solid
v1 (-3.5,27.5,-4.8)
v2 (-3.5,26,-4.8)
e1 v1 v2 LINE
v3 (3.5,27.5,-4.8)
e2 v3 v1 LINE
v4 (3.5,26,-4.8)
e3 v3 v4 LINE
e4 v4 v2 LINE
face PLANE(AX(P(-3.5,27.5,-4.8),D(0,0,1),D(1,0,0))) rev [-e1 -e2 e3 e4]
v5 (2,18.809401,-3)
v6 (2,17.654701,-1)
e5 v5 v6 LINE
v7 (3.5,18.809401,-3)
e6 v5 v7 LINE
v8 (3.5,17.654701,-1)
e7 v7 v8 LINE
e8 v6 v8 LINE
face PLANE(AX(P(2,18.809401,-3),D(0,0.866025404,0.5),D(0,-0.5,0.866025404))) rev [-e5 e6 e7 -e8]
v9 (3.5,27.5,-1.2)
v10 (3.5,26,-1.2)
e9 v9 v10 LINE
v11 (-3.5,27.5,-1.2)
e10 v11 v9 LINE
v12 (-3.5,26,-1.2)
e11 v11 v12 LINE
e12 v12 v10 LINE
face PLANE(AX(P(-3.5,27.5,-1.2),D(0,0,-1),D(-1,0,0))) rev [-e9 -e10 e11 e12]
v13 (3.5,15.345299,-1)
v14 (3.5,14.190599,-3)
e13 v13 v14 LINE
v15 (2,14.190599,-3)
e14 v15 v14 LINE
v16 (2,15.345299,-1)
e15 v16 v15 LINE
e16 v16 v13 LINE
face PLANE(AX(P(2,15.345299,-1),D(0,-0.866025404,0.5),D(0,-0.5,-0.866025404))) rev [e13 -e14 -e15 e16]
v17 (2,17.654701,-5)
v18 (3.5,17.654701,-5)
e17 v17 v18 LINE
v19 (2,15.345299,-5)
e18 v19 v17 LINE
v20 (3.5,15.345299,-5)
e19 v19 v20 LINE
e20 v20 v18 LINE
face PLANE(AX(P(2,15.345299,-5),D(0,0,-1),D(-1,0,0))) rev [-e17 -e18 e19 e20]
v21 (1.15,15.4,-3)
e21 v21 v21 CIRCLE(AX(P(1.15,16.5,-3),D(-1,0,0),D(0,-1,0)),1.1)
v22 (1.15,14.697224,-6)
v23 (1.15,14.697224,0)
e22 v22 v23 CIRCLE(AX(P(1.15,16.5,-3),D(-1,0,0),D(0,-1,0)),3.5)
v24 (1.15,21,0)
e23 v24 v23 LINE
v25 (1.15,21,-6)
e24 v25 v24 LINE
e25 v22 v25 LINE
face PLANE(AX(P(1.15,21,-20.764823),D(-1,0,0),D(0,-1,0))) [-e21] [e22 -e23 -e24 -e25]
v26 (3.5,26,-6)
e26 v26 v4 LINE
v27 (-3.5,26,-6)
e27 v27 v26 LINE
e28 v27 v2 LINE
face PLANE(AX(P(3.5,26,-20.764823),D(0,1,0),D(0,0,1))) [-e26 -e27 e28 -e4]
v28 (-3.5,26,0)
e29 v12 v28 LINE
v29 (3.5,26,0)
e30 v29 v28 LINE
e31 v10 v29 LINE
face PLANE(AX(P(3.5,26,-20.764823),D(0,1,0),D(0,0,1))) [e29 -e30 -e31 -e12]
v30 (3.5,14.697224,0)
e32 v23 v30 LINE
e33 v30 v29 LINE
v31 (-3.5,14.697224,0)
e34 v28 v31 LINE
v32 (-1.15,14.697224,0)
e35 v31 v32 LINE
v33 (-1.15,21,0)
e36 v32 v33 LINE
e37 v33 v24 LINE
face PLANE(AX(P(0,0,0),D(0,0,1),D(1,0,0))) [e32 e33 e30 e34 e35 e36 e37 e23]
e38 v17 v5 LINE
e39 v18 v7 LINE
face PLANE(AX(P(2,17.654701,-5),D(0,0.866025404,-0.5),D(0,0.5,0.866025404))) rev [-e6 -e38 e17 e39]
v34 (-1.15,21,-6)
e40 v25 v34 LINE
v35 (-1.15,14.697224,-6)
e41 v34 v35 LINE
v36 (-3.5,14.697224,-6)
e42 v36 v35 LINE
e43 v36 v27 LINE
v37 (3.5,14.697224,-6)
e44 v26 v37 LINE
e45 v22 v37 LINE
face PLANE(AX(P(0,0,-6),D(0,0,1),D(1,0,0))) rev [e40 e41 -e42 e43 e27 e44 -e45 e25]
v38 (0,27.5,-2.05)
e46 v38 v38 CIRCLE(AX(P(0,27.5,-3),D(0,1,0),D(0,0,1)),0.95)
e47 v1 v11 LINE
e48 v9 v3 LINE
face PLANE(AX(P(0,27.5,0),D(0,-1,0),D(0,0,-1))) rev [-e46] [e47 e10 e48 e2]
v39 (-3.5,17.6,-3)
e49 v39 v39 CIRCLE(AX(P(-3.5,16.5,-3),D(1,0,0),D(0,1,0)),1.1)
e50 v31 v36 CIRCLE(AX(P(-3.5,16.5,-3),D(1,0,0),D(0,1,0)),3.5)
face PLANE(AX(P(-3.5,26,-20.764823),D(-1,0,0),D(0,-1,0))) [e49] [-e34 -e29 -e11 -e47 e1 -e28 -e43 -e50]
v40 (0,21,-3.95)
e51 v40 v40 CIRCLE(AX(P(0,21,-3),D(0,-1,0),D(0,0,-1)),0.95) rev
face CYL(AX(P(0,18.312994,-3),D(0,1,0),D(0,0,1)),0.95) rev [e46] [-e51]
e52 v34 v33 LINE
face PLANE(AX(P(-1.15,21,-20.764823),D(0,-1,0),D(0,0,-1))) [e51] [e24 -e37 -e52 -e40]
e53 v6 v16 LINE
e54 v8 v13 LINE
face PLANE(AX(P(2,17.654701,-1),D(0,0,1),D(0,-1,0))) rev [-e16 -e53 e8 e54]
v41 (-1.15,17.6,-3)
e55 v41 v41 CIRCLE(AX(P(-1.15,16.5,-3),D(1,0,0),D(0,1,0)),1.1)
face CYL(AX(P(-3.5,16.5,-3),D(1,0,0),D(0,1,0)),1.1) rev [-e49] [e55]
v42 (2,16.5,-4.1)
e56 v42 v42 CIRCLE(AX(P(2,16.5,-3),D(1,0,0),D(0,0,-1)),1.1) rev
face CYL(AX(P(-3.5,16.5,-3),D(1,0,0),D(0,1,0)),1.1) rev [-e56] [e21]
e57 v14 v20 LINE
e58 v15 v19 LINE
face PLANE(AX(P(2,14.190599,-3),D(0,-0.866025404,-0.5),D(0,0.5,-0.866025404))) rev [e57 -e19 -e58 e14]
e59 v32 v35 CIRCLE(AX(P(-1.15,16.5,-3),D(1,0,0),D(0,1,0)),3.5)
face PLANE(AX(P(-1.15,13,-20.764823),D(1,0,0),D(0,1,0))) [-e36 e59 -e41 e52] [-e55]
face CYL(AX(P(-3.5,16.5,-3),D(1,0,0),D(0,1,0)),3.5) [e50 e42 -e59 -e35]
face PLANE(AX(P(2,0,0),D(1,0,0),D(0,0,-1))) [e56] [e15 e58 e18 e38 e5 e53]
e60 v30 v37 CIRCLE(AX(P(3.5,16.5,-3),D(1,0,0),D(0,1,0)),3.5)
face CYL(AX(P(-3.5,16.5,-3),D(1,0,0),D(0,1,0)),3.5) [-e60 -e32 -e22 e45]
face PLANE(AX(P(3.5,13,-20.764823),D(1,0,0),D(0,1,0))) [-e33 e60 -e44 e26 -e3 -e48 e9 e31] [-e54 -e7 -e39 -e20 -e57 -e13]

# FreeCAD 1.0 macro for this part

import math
import FreeCAD as App
import Part
import Sketcher
from FreeCAD import Vector
Q = App.Units.Quantity

doc = App.newDocument("Part")
body = doc.addObject("PartDesign::Body", "Body")

# Sketch on XY plane
sketch1 = body.newObject("Sketcher::SketchObject", "Sketch")
sketch1.AttachmentSupport = (doc.getObject("XY_Plane"), [""])
sketch1.MapMode = "FlatFace"
sketch1.addGeometry([
    Part.LineSegment(Vector(-1.1, 13, 0), Vector(-1.1, 21, 0)),  # 0
    Part.LineSegment(Vector(-1.1, 21, 0), Vector(1.1, 21, 0)),  # 1
    Part.LineSegment(Vector(1.1, 21, 0), Vector(1.1, 13, 0)),  # 2
    Part.LineSegment(Vector(1.1, 13, 0), Vector(3.5, 13, 0)),  # 3
    Part.LineSegment(Vector(3.5, 13, 0), Vector(3.5, 26, 0)),  # 4
    Part.LineSegment(Vector(3.5, 26, 0), Vector(-3.5, 26, 0)),  # 5
    Part.LineSegment(Vector(-3.5, 26, 0), Vector(-3.5, 13, 0)),  # 6
    Part.LineSegment(Vector(-3.5, 13, 0), Vector(-1.1, 13, 0)),  # 7
], False)
sketch1.addConstraint([
    Sketcher.Constraint("Coincident", 0, 2, 1, 1),
    Sketcher.Constraint("Coincident", 1, 2, 2, 1),
    Sketcher.Constraint("Coincident", 2, 2, 3, 1),
    Sketcher.Constraint("Coincident", 3, 2, 4, 1),
    Sketcher.Constraint("Coincident", 4, 2, 5, 1),
    Sketcher.Constraint("Coincident", 5, 2, 6, 1),
    Sketcher.Constraint("Coincident", 6, 2, 7, 1),
    Sketcher.Constraint("Coincident", 7, 2, 0, 1),
    Sketcher.Constraint("Vertical", 0),
    Sketcher.Constraint("Horizontal", 1),
    Sketcher.Constraint("Vertical", 2),
    Sketcher.Constraint("Horizontal", 3),
    Sketcher.Constraint("Vertical", 4),
    Sketcher.Constraint("Horizontal", 5),
    Sketcher.Constraint("Vertical", 6),
    Sketcher.Constraint("Horizontal", 7),
    Sketcher.Constraint("Symmetric", 3, 2, 6, 2, -2),
    Sketcher.Constraint("Equal", 3, 7),
    Sketcher.Constraint("DistanceX", 5, 2, 5, 1, Q("7 mm")),
    Sketcher.Constraint("DistanceY", 0, 1, 0, 2, Q("8 mm")),
    Sketcher.Constraint("DistanceY", 4, 1, 4, 2, Q("13 mm")),
    Sketcher.Constraint("DistanceX", 1, 1, 1, 2, Q("2.3 mm")),
    Sketcher.Constraint("DistanceY", -1, 1, 0, 2, Q("21 mm")),
])
pad1 = body.newObject("PartDesign::Pad", "Pad")
pad1.Profile = sketch1
pad1.Length = 6
pad1.Reversed = True

# Sketch on YZ plane
sketch2 = body.newObject("Sketcher::SketchObject", "Sketch001")
sketch2.AttachmentSupport = (doc.getObject("YZ_Plane"), [""])
sketch2.MapMode = "FlatFace"
sketch2.AttachmentOffset = App.Placement(Vector(0, 0, 3.5), App.Rotation())
sketch2.addGeometry([
    Part.Circle(Vector(16.5, -3, 0), Vector(0, 0, 1), 1.1),  # 0
    Part.ArcOfCircle(Part.Circle(Vector(16.5, -3, 0), Vector(0, 0, 1), 3.5), math.radians(121), math.radians(180)),  # 1
    Part.LineSegment(Vector(14.7, 0, 0), Vector(13, 0, 0)),  # 2
    Part.LineSegment(Vector(13, 0, 0), Vector(13, -3, 0)),  # 3
    Part.ArcOfCircle(Part.Circle(Vector(16.5, -3, 0), Vector(0, 0, 1), 3.5), math.radians(-180), math.radians(-121)),  # 4
    Part.LineSegment(Vector(13, -3, 0), Vector(13, -6, 0)),  # 5
    Part.LineSegment(Vector(13, -6, 0), Vector(14.7, -6, 0)),  # 6
], False)
sketch2.addConstraint([
    Sketcher.Constraint("Coincident", 1, 1, 2, 1),
    Sketcher.Constraint("Coincident", 2, 2, 3, 1),
    Sketcher.Constraint("Tangent", 3, 2, 1, 2),
    Sketcher.Constraint("Tangent", 4, 1, 5, 1),
    Sketcher.Constraint("Coincident", 5, 2, 6, 1),
    Sketcher.Constraint("Coincident", 6, 2, 4, 2),
    Sketcher.Constraint("Horizontal", 2),
    Sketcher.Constraint("Vertical", 3),
    Sketcher.Constraint("Vertical", 5),
    Sketcher.Constraint("Horizontal", 6),
    Sketcher.Constraint("Coincident", 1, 3, 0, 3),
    Sketcher.Constraint("Coincident", 4, 3, 0, 3),
    Sketcher.Constraint("Equal", 1, 4),
    Sketcher.Constraint("PointOnObject", 1, 1, -1),
    Sketcher.Constraint("Vertical", 1, 1, 6, 2),
    Sketcher.Constraint("Diameter", 0, Q("2.2 mm")),
    Sketcher.Constraint("Radius", 1, Q("3.5 mm")),
    Sketcher.Constraint("DistanceY", 3, 2, 3, 1, Q("3 mm")),
    Sketcher.Constraint("DistanceX", -1, 1, 2, 2, Q("13 mm")),
])
pocket1 = body.newObject("PartDesign::Pocket", "Pocket")
pocket1.Profile = sketch2
pocket1.Type = "ThroughAll"

# Sketch on YZ plane
sketch3 = body.newObject("Sketcher::SketchObject", "Sketch002")
sketch3.AttachmentSupport = (doc.getObject("YZ_Plane"), [""])
sketch3.MapMode = "FlatFace"
sketch3.AttachmentOffset = App.Placement(Vector(0, 0, 3.5), App.Rotation())
sketch3.addGeometry([
    Part.LineSegment(Vector(18.8, -3, 0), Vector(17.7, -1, 0)),  # 0
    Part.LineSegment(Vector(17.7, -1, 0), Vector(15.3, -1, 0)),  # 1
    Part.LineSegment(Vector(15.3, -1, 0), Vector(14.2, -3, 0)),  # 2
    Part.LineSegment(Vector(14.2, -3, 0), Vector(15.3, -5, 0)),  # 3
    Part.LineSegment(Vector(15.3, -5, 0), Vector(17.7, -5, 0)),  # 4
    Part.LineSegment(Vector(17.7, -5, 0), Vector(18.8, -3, 0)),  # 5
], False)
sketch3.addConstraint([
    Sketcher.Constraint("Coincident", 0, 2, 1, 1),
    Sketcher.Constraint("Coincident", 1, 2, 2, 1),
    Sketcher.Constraint("Coincident", 2, 2, 3, 1),
    Sketcher.Constraint("Coincident", 3, 2, 4, 1),
    Sketcher.Constraint("Coincident", 4, 2, 5, 1),
    Sketcher.Constraint("Coincident", 5, 2, 0, 1),
    Sketcher.Constraint("Horizontal", 1),
    Sketcher.Constraint("Horizontal", 4),
    Sketcher.Constraint("Parallel", 0, 3),
    Sketcher.Constraint("Parallel", 2, 5),
    Sketcher.Constraint("Horizontal", 2, 2, 5, 2),
    Sketcher.Constraint("Vertical", 1, 2, 3, 2),
    Sketcher.Constraint("Vertical", 0, 2, 4, 2),
    Sketcher.Constraint("Angle", 0, Q("120 deg")),
    Sketcher.Constraint("DistanceY", 0, 2, -1, 1, Q("1 mm")),
    Sketcher.Constraint("DistanceY", 2, 2, -1, 1, Q("3 mm")),
    Sketcher.Constraint("DistanceX", 1, 2, 1, 1, Q("2.309401 mm")),
    Sketcher.Constraint("DistanceX", -1, 1, 0, 2, Q("17.654701 mm")),
])
pocket2 = body.newObject("PartDesign::Pocket", "Pocket001")
pocket2.Profile = sketch3
pocket2.Length = 1.5

# Sketch on XZ plane
sketch4 = body.newObject("Sketcher::SketchObject", "Sketch003")
sketch4.AttachmentSupport = (doc.getObject("XZ_Plane"), [""])
sketch4.MapMode = "FlatFace"
sketch4.AttachmentOffset = App.Placement(Vector(0, 0, -26), App.Rotation())
sketch4.addGeometry([
    Part.LineSegment(Vector(-3.5, -4.8, 0), Vector(-3.5, -1.2, 0)),
    Part.LineSegment(Vector(-3.5, -1.2, 0), Vector(3.5, -1.2, 0)),
    Part.LineSegment(Vector(3.5, -1.2, 0), Vector(3.5, -4.8, 0)),
    Part.LineSegment(Vector(3.5, -4.8, 0), Vector(-3.5, -4.8, 0)),
], False)
sketch4.addConstraint([
    Sketcher.Constraint("Coincident", 0, 2, 1, 1),
    Sketcher.Constraint("Coincident", 1, 2, 2, 1),
    Sketcher.Constraint("Coincident", 2, 2, 3, 1),
    Sketcher.Constraint("Coincident", 3, 2, 0, 1),
    Sketcher.Constraint("Vertical", 0),
    Sketcher.Constraint("Horizontal", 1),
    Sketcher.Constraint("Vertical", 2),
    Sketcher.Constraint("Horizontal", 3),
    Sketcher.Constraint("DistanceX", 1, 1, 1, 2, Q("7 mm")),
    Sketcher.Constraint("DistanceY", 0, 1, 0, 2, Q("3.6 mm")),
    Sketcher.Constraint("DistanceX", 0, 2, -1, 1, Q("3.5 mm")),
    Sketcher.Constraint("DistanceY", 0, 2, -1, 1, Q("1.2 mm")),
])
pad2 = body.newObject("PartDesign::Pad", "Pad001")
pad2.Profile = sketch4
pad2.Length = 1.5
pad2.Reversed = True

# Sketch on XZ plane
sketch5 = body.newObject("Sketcher::SketchObject", "Sketch004")
sketch5.AttachmentSupport = (doc.getObject("XZ_Plane"), [""])
sketch5.MapMode = "FlatFace"
sketch5.AttachmentOffset = App.Placement(Vector(0, 0, -27.5), App.Rotation())
sketch5.addGeometry(Part.Circle(Vector(0, -3, 0), Vector(0, 0, 1), 0.9), False)
sketch5.addConstraint([
    Sketcher.Constraint("PointOnObject", 0, 3, -2),
    Sketcher.Constraint("Diameter", 0, Q("1.9 mm")),
    Sketcher.Constraint("DistanceY", 0, 3, -1, 1, Q("3 mm")),
])
pocket3 = body.newObject("PartDesign::Pocket", "Pocket002")
pocket3.Profile = sketch5
pocket3.Length = 6.5
pocket3.Reversed = True

doc.recompute()
